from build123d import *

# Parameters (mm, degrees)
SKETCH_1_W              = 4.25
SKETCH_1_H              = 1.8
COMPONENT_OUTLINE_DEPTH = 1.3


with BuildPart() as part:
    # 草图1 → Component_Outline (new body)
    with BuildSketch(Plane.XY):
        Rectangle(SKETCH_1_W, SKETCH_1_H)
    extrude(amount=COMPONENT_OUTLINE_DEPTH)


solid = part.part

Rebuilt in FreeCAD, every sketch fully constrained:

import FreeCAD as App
import Part
import Sketcher


def add_polygon(sketch, points):
    """Adds a closed chain of lines whose ends are joined by coincident constraints."""
    first, n = sketch.GeometryCount, len(points)
    for a, b in zip(points, points[1:] + points[:1]):
        sketch.addGeometry(Part.LineSegment(App.Vector(*a, 0), App.Vector(*b, 0)), False)
    for i in range(n):
        sketch.addConstraint(Sketcher.Constraint("Coincident", first + i, 2, first + (i + 1) % n, 1))

doc = App.newDocument("Part")
params = doc.addObject("Spreadsheet::Sheet", "Params")
for row, (alias, value) in enumerate([
    ("sketch1_height", "1.8 mm"),
    ("sketch1_width", "4.25 mm"),
    ("pad1_length", "1.3 mm"),
], start=1):
    params.set(f"A{row}", alias)
    params.set(f"B{row}", "=" + value)
    params.setAlias(f"B{row}", alias)

body = doc.addObject("PartDesign::Body", "Body")

# Sketch on XY plane
sketch1 = body.newObject("Sketcher::SketchObject", "Sketch")
sketch1.AttachmentSupport = (doc.getObject("XY_Plane"), [""])
sketch1.MapMode = "FlatFace"
add_polygon(sketch1, [(-2.125, 0.9), (-2.125, -0.9), (2.125, -0.9), (2.125, 0.9)])  # lines 0-3
sketch1.addConstraint([
    Sketcher.Constraint("Vertical", 0),
    Sketcher.Constraint("Horizontal", 1),
    Sketcher.Constraint("Vertical", 2),
    Sketcher.Constraint("Horizontal", 3),
    Sketcher.Constraint("Symmetric", 0, 2, 2, 2, -1, 1),
    Sketcher.Constraint("DistanceY", 0, 2, 0, 1, 1.8),
    Sketcher.Constraint("DistanceX", 1, 1, 1, 2, 4.25),
])
sketch1.setExpression("Constraints[9]", "Params.sketch1_height")
sketch1.setExpression("Constraints[10]", "Params.sketch1_width")
pad1 = body.newObject("PartDesign::Pad", "Pad")
pad1.Profile = sketch1
pad1.setExpression("Length", "Params.pad1_length")

doc.recompute()
